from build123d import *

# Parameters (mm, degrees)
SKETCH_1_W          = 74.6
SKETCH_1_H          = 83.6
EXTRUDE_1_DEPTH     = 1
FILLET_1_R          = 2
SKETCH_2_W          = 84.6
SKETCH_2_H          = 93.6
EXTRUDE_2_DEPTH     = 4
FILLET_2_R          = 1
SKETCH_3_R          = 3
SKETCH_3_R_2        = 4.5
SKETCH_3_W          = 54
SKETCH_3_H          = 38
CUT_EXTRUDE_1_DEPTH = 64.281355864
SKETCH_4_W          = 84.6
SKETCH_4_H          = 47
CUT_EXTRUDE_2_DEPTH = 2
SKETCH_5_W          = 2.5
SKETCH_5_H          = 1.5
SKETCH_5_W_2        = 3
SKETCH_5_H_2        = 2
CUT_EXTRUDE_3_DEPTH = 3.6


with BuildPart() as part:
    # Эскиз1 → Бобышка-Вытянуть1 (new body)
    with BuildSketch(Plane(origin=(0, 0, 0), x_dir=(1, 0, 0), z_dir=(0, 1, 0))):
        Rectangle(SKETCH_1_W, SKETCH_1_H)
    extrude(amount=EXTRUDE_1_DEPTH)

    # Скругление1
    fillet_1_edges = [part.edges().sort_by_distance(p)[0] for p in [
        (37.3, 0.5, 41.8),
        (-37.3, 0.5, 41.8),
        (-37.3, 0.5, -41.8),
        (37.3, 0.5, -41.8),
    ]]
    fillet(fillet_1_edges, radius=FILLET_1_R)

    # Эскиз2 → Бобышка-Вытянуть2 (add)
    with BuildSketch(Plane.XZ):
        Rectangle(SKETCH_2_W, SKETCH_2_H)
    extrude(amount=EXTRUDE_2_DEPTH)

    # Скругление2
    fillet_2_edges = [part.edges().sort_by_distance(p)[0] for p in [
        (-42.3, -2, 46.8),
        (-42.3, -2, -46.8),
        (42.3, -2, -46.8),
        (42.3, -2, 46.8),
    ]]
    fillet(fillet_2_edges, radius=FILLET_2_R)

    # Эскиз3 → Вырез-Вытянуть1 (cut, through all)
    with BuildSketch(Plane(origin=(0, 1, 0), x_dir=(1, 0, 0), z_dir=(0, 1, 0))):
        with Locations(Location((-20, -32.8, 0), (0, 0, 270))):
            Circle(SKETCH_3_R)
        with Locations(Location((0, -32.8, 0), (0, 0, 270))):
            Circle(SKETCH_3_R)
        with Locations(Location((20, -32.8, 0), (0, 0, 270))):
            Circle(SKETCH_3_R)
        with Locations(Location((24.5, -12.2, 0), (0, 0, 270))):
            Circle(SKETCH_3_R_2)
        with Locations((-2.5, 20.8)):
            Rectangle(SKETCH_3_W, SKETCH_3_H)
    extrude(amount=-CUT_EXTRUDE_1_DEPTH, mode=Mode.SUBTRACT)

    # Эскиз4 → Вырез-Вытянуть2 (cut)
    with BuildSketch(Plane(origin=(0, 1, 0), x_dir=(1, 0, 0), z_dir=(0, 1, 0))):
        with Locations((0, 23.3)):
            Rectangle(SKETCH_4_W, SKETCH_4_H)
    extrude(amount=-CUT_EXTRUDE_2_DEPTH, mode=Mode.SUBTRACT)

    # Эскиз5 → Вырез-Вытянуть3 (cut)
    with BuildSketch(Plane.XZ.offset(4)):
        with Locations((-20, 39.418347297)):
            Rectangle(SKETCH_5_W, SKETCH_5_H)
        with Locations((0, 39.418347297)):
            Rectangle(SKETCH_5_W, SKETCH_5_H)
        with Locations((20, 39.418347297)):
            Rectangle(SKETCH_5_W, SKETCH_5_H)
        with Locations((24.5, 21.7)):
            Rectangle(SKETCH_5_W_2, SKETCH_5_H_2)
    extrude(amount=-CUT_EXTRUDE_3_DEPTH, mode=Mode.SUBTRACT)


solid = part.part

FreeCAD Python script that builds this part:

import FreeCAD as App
import Part
import Sketcher
from FreeCAD import Vector


def edges_at(feature, points):
    """Names of the edges that pass closest to the given points."""
    edges = feature.Shape.Edges
    near = lambda p: min(range(len(edges)), key=lambda i: edges[i].distToShape(Part.Vertex(*p))[0])
    return sorted({f"Edge{near(p) + 1}" for p in points})


def add_polygon(sketch, points):
    """Adds a closed chain of lines whose ends are joined by coincident constraints."""
    first, n = sketch.GeometryCount, len(points)
    for a, b in zip(points, points[1:] + points[:1]):
        sketch.addGeometry(Part.LineSegment(App.Vector(*a, 0), App.Vector(*b, 0)), False)
    for i in range(n):
        sketch.addConstraint(Sketcher.Constraint("Coincident", first + i, 2, first + (i + 1) % n, 1))

doc = App.newDocument("Part")
params = doc.addObject("Spreadsheet::Sheet", "Params")
for row, (alias, value) in enumerate([
    ("sketch1_width", "74.6 mm"),
    ("sketch1_height", "83.6 mm"),
    ("pad1_length", "1 mm"),
    ("fillet_radius", "2 mm"),
    ("sketch2_width", "84.6 mm"),
    ("sketch2_height", "93.6 mm"),
    ("pad2_length", "4 mm"),
    ("fillet2_radius", "1 mm"),
    ("sketch3_diameter", "6 mm"),
    ("sketch3_diameter2", "9 mm"),
    ("sketch3_width", "54 mm"),
    ("sketch3_height", "38 mm"),
    ("sketch4_height", "47 mm"),
    ("sketch4_width", "84.6 mm"),
    ("pocket2_length", "2 mm"),
    ("sketch5_width", "3 mm"),
    ("sketch5_height", "2 mm"),
    ("sketch5_width2", "2.5 mm"),
    ("sketch5_height2", "1.5 mm"),
    ("pocket3_length", "3.6 mm"),
], start=1):
    params.set(f"A{row}", alias)
    params.set(f"B{row}", "=" + value)
    params.setAlias(f"B{row}", alias)

body = doc.addObject("PartDesign::Body", "Body")

sketch1 = body.newObject("Sketcher::SketchObject", "Sketch")
sketch1.AttachmentSupport = (doc.getObject("XZ_Plane"), [""])
sketch1.MapMode = "FlatFace"
add_polygon(sketch1, [(-37, -42), (-37, 42), (37, 42), (37, -42)])
sketch1.addConstraint(Sketcher.Constraint("Vertical", 0))
sketch1.addConstraint(Sketcher.Constraint("Horizontal", 1))
sketch1.addConstraint(Sketcher.Constraint("Vertical", 2))
sketch1.addConstraint(Sketcher.Constraint("Horizontal", 3))
sketch1.addConstraint(Sketcher.Constraint("Symmetric", 0, 2, 2, 2, -1, 1))
sketch1.addConstraint(Sketcher.Constraint("DistanceX", 1, 1, 1, 2, 74.6))
sketch1.addConstraint(Sketcher.Constraint("DistanceY", 0, 1, 0, 2, 83.6))
sketch1.setExpression("Constraints[9]", "Params.sketch1_width")
sketch1.setExpression("Constraints[10]", "Params.sketch1_height")
pad1 = body.newObject("PartDesign::Pad", "Pad")
pad1.Profile = sketch1
pad1.setExpression("Length", "Params.pad1_length")
pad1.Reversed = True
doc.recompute()

fillet = body.newObject("PartDesign::Fillet", "Fillet")
fillet.Base = (pad1, edges_at(pad1, [
    (37.3, 0.5, 41.8),
    (-37.3, 0.5, 41.8),
    (-37.3, 0.5, -41.8),
    (37.3, 0.5, -41.8),
]))
fillet.setExpression("Radius", "Params.fillet_radius")

sketch2 = body.newObject("Sketcher::SketchObject", "Sketch001")
sketch2.AttachmentSupport = (doc.getObject("XZ_Plane"), [""])
sketch2.MapMode = "FlatFace"
add_polygon(sketch2, [(-42, 47), (-42, -47), (42, -47), (42, 47)])
sketch2.addConstraint(Sketcher.Constraint("Vertical", 0))
sketch2.addConstraint(Sketcher.Constraint("Horizontal", 1))
sketch2.addConstraint(Sketcher.Constraint("Vertical", 2))
sketch2.addConstraint(Sketcher.Constraint("Horizontal", 3))
sketch2.addConstraint(Sketcher.Constraint("Symmetric", 0, 2, 2, 2, -1, 1))
sketch2.addConstraint(Sketcher.Constraint("DistanceX", 1, 1, 1, 2, 84.6))
sketch2.addConstraint(Sketcher.Constraint("DistanceY", 0, 2, 0, 1, 93.6))
sketch2.setExpression("Constraints[9]", "Params.sketch2_width")
sketch2.setExpression("Constraints[10]", "Params.sketch2_height")
pad2 = body.newObject("PartDesign::Pad", "Pad001")
pad2.Profile = sketch2
pad2.setExpression("Length", "Params.pad2_length")
doc.recompute()

fillet2 = body.newObject("PartDesign::Fillet", "Fillet001")
fillet2.Base = (pad2, edges_at(pad2, [
    (-42.3, -2, 46.8),
    (-42.3, -2, -46.8),
    (42.3, -2, -46.8),
    (42.3, -2, 46.8),
]))
fillet2.setExpression("Radius", "Params.fillet2_radius")

sketch3 = body.newObject("Sketcher::SketchObject", "Sketch002")
sketch3.AttachmentSupport = (doc.getObject("XZ_Plane"), [""])
sketch3.MapMode = "FlatFace"
sketch3.AttachmentOffset = App.Placement(Vector(0, 0, -1), App.Rotation())
sketch3.addGeometry(Part.Circle(Vector(-20, 32.8, 0), Vector(0, 0, 1), 3), False)
sketch3.addGeometry(Part.Circle(Vector(0, 32.8, 0), Vector(0, 0, 1), 3), False)
sketch3.addGeometry(Part.Circle(Vector(20, 32.8, 0), Vector(0, 0, 1), 3), False)
sketch3.addGeometry(Part.Circle(Vector(24.5, 12.2, 0), Vector(0, 0, 1), 4.5), False)
add_polygon(sketch3, [(-29.5, -39.8), (-29.5, -1.8), (24.5, -1.8), (24.5, -39.8)])
sketch3.addConstraint(Sketcher.Constraint("Vertical", 4))
sketch3.addConstraint(Sketcher.Constraint("Horizontal", 5))
sketch3.addConstraint(Sketcher.Constraint("Vertical", 6))
sketch3.addConstraint(Sketcher.Constraint("Horizontal", 7))
sketch3.addConstraint(Sketcher.Constraint("Equal", 0, 1))
sketch3.addConstraint(Sketcher.Constraint("Equal", 1, 2))
sketch3.addConstraint(Sketcher.Constraint("Symmetric", 0, 3, 2, 3, -2))
sketch3.addConstraint(Sketcher.Constraint("PointOnObject", 1, 3, -2))
sketch3.addConstraint(Sketcher.Constraint("Horizontal", 0, 3, 1, 3))
sketch3.addConstraint(Sketcher.Constraint("Vertical", 3, 3, 5, 2))
sketch3.addConstraint(Sketcher.Constraint("Diameter", 0, 6.0))
sketch3.addConstraint(Sketcher.Constraint("Diameter", 3, 9.0))
sketch3.addConstraint(Sketcher.Constraint("DistanceX", 5, 1, 5, 2, 54.0))
sketch3.addConstraint(Sketcher.Constraint("DistanceY", 4, 1, 4, 2, 38.0))
sketch3.addConstraint(Sketcher.Constraint("DistanceX", 0, 3, -1, 1, 20.0))
sketch3.addConstraint(Sketcher.Constraint("DistanceY", 4, 2, 3, 3, 14.0))
sketch3.addConstraint(Sketcher.Constraint("DistanceY", -1, 1, 0, 3, 32.8))
sketch3.addConstraint(Sketcher.Constraint("DistanceX", -1, 1, 3, 3, 24.5))
sketch3.addConstraint(Sketcher.Constraint("DistanceY", -1, 1, 3, 3, 12.2))
sketch3.setExpression("Constraints[14]", "Params.sketch3_diameter")
sketch3.setExpression("Constraints[15]", "Params.sketch3_diameter2")
sketch3.setExpression("Constraints[16]", "Params.sketch3_width")
sketch3.setExpression("Constraints[17]", "Params.sketch3_height")
pocket1 = body.newObject("PartDesign::Pocket", "Pocket")
pocket1.Profile = sketch3
pocket1.Type = "ThroughAll"
pocket1.Reversed = True

sketch4 = body.newObject("Sketcher::SketchObject", "Sketch003")
sketch4.AttachmentSupport = (doc.getObject("XZ_Plane"), [""])
sketch4.MapMode = "FlatFace"
sketch4.AttachmentOffset = App.Placement(Vector(0, 0, -1), App.Rotation())
add_polygon(sketch4, [(-42, -47), (-42, 0), (42, 0), (42, -47)])
sketch4.addConstraint(Sketcher.Constraint("Vertical", 0))
sketch4.addConstraint(Sketcher.Constraint("Horizontal", 1))
sketch4.addConstraint(Sketcher.Constraint("Vertical", 2))
sketch4.addConstraint(Sketcher.Constraint("Horizontal", 3))
sketch4.addConstraint(Sketcher.Constraint("DistanceY", 0, 1, 0, 2, 47.0))
sketch4.addConstraint(Sketcher.Constraint("DistanceX", 1, 1, 1, 2, 84.6))
sketch4.addConstraint(Sketcher.Constraint("DistanceX", 0, 2, -1, 1, 42.3))
sketch4.addConstraint(Sketcher.Constraint("DistanceY", -1, 1, 0, 2, 0.2))
sketch4.setExpression("Constraints[8]", "Params.sketch4_height")
sketch4.setExpression("Constraints[9]", "Params.sketch4_width")
pocket2 = body.newObject("PartDesign::Pocket", "Pocket001")
pocket2.Profile = sketch4
pocket2.setExpression("Length", "Params.pocket2_length")
pocket2.Reversed = True

sketch5 = body.newObject("Sketcher::SketchObject", "Sketch004")
sketch5.AttachmentSupport = (doc.getObject("XZ_Plane"), [""])
sketch5.MapMode = "FlatFace"
sketch5.AttachmentOffset = App.Placement(Vector(0, 0, 4), App.Rotation())
add_polygon(sketch5, [(-21.2, 40.2), (-21.2, 38.7), (-18.8, 38.7), (-18.8, 40.2)])
add_polygon(sketch5, [(-1.2, 40.2), (-1.2, 38.7), (1.2, 38.7), (1.2, 40.2)])
add_polygon(sketch5, [(18.8, 40.2), (18.8, 38.7), (21.2, 38.7), (21.2, 40.2)])
add_polygon(sketch5, [(23, 22.7), (23, 20.7), (26, 20.7), (26, 22.7)])
sketch5.addConstraint(Sketcher.Constraint("Vertical", 0))
sketch5.addConstraint(Sketcher.Constraint("Horizontal", 1))
sketch5.addConstraint(Sketcher.Constraint("Vertical", 2))
sketch5.addConstraint(Sketcher.Constraint("Horizontal", 3))
sketch5.addConstraint(Sketcher.Constraint("Vertical", 4))
sketch5.addConstraint(Sketcher.Constraint("Horizontal", 5))
sketch5.addConstraint(Sketcher.Constraint("Vertical", 6))
sketch5.addConstraint(Sketcher.Constraint("Horizontal", 7))
sketch5.addConstraint(Sketcher.Constraint("Vertical", 8))
sketch5.addConstraint(Sketcher.Constraint("Horizontal", 9))
sketch5.addConstraint(Sketcher.Constraint("Vertical", 10))
sketch5.addConstraint(Sketcher.Constraint("Horizontal", 11))
sketch5.addConstraint(Sketcher.Constraint("Vertical", 12))
sketch5.addConstraint(Sketcher.Constraint("Horizontal", 13))
sketch5.addConstraint(Sketcher.Constraint("Vertical", 14))
sketch5.addConstraint(Sketcher.Constraint("Horizontal", 15))
sketch5.addConstraint(Sketcher.Constraint("Symmetric", 1, 2, 8, 2, -2))
sketch5.addConstraint(Sketcher.Constraint("Symmetric", 3, 2, 10, 2, -2))
sketch5.addConstraint(Sketcher.Constraint("Horizontal", 1, 2, 4, 2))
sketch5.addConstraint(Sketcher.Constraint("Horizontal", 3, 2, 6, 2))
sketch5.addConstraint(Sketcher.Constraint("Equal", 3, 5))
sketch5.addConstraint(Sketcher.Constraint("DistanceX", 13, 1, 13, 2, 3.0))
sketch5.addConstraint(Sketcher.Constraint("DistanceY", 12, 2, 12, 1, 2.0))
sketch5.addConstraint(Sketcher.Constraint("DistanceX", 1, 1, 1, 2, 2.5))
sketch5.addConstraint(Sketcher.Constraint("DistanceY", 0, 2, 0, 1, 1.5))
sketch5.addConstraint(Sketcher.Constraint("DistanceX", -1, 1, 12, 2, 23.0))
sketch5.addConstraint(Sketcher.Constraint("DistanceX", 0, 2, 4, 2, 20.0))
sketch5.addConstraint(Sketcher.Constraint("DistanceX", 4, 2, 8, 2, 20.0))
sketch5.addConstraint(Sketcher.Constraint("DistanceY", -1, 1, 12, 2, 20.7))
sketch5.addConstraint(Sketcher.Constraint("DistanceY", -1, 1, 0, 2, 38.668347))
sketch5.setExpression("Constraints[37]", "Params.sketch5_width")
sketch5.setExpression("Constraints[38]", "Params.sketch5_height")
sketch5.setExpression("Constraints[39]", "Params.sketch5_width2")
sketch5.setExpression("Constraints[40]", "Params.sketch5_height2")
pocket3 = body.newObject("PartDesign::Pocket", "Pocket002")
pocket3.Profile = sketch5
pocket3.setExpression("Length", "Params.pocket3_length")

doc.recompute()
